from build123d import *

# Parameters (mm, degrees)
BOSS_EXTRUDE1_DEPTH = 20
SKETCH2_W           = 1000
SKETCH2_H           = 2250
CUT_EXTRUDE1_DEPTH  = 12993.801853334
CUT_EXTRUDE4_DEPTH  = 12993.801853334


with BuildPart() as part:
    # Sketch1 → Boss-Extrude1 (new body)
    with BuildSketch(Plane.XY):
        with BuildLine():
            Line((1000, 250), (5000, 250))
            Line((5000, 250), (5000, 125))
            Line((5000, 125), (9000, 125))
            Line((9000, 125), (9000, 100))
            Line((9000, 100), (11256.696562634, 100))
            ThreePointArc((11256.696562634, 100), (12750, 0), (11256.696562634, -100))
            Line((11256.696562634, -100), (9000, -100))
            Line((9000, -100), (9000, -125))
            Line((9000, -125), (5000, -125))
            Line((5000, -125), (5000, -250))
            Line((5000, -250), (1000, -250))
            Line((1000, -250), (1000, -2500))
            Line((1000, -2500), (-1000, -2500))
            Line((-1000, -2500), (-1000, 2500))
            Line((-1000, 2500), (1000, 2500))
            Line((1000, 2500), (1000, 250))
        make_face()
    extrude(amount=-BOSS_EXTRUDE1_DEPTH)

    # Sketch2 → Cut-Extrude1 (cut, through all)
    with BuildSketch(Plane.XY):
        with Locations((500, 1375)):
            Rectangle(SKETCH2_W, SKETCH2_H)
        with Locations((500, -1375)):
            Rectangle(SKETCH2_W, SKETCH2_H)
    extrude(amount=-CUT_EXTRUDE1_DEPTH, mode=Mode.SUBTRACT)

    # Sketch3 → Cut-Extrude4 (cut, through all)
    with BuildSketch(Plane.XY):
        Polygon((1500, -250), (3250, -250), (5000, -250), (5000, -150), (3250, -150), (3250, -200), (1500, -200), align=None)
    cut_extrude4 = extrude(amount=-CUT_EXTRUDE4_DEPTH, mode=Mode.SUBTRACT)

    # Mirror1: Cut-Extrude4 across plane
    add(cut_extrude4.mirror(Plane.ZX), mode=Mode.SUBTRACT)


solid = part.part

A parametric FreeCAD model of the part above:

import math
import FreeCAD as App
import Part
import Sketcher
Q = App.Units.Quantity

doc = App.newDocument("Part")
body = doc.addObject("PartDesign::Body", "Body")

# Sketch on XY plane
sketch1 = body.newObject("Sketcher::SketchObject", "Sketch")
sketch1.AttachmentSupport = (doc.getObject("XY_Plane"), [""])
sketch1.MapMode = "FlatFace"
sketch1.addGeometry([
    Part.LineSegment(App.Vector(5000, 250, 0), App.Vector(1000, 250, 0)),  # 0
    Part.LineSegment(App.Vector(1000, 250, 0), App.Vector(1000, 2500, 0)),  # 1
    Part.LineSegment(App.Vector(1000, 2500, 0), App.Vector(-1000, 2500, 0)),  # 2
    Part.LineSegment(App.Vector(-1000, 2500, 0), App.Vector(-1000, -2500, 0)),  # 3
    Part.LineSegment(App.Vector(-1000, -2500, 0), App.Vector(1000, -2500, 0)),  # 4
    Part.LineSegment(App.Vector(1000, -2500, 0), App.Vector(1000, -250, 0)),  # 5
    Part.LineSegment(App.Vector(1000, -250, 0), App.Vector(5000, -250, 0)),  # 6
    Part.LineSegment(App.Vector(5000, -250, 0), App.Vector(5000, -125, 0)),  # 7
    Part.LineSegment(App.Vector(5000, -125, 0), App.Vector(9000, -125, 0)),  # 8
    Part.LineSegment(App.Vector(9000, -125, 0), App.Vector(9000, -100, 0)),  # 9
    Part.LineSegment(App.Vector(9000, -100, 0), App.Vector(11256.696563, -100, 0)),  # 10
    Part.ArcOfCircle(Part.Circle(App.Vector(12000, 0, 0), App.Vector(0, 0, 1), 750), math.radians(-172.337744), math.radians(172.337744)),  # 11
    Part.LineSegment(App.Vector(11256.696563, 100, 0), App.Vector(9000, 100, 0)),  # 12
    Part.LineSegment(App.Vector(9000, 100, 0), App.Vector(9000, 125, 0)),  # 13
    Part.LineSegment(App.Vector(9000, 125, 0), App.Vector(5000, 125, 0)),  # 14
    Part.LineSegment(App.Vector(5000, 125, 0), App.Vector(5000, 250, 0)),  # 15
], False)
sketch1.addConstraint([
    Sketcher.Constraint("Coincident", 0, 2, 1, 1),
    Sketcher.Constraint("Coincident", 1, 2, 2, 1),
    Sketcher.Constraint("Coincident", 2, 2, 3, 1),
    Sketcher.Constraint("Coincident", 3, 2, 4, 1),
    Sketcher.Constraint("Coincident", 4, 2, 5, 1),
    Sketcher.Constraint("Coincident", 5, 2, 6, 1),
    Sketcher.Constraint("Coincident", 6, 2, 7, 1),
    Sketcher.Constraint("Coincident", 7, 2, 8, 1),
    Sketcher.Constraint("Coincident", 8, 2, 9, 1),
    Sketcher.Constraint("Coincident", 9, 2, 10, 1),
    Sketcher.Constraint("Coincident", 10, 2, 11, 1),
    Sketcher.Constraint("Coincident", 11, 2, 12, 1),
    Sketcher.Constraint("Coincident", 12, 2, 13, 1),
    Sketcher.Constraint("Coincident", 13, 2, 14, 1),
    Sketcher.Constraint("Coincident", 14, 2, 15, 1),
    Sketcher.Constraint("Coincident", 15, 2, 0, 1),
    Sketcher.Constraint("Horizontal", 0),
    Sketcher.Constraint("Vertical", 1),
    Sketcher.Constraint("Horizontal", 2),
    Sketcher.Constraint("Vertical", 3),
    Sketcher.Constraint("Horizontal", 4),
    Sketcher.Constraint("Vertical", 5),
    Sketcher.Constraint("Horizontal", 6),
    Sketcher.Constraint("Vertical", 7),
    Sketcher.Constraint("Horizontal", 8),
    Sketcher.Constraint("Vertical", 9),
    Sketcher.Constraint("Horizontal", 10),
    Sketcher.Constraint("Horizontal", 12),
    Sketcher.Constraint("Vertical", 13),
    Sketcher.Constraint("Horizontal", 14),
    Sketcher.Constraint("Vertical", 15),
    Sketcher.Constraint("Symmetric", 1, 2, 3, 2, -1, 1),
    Sketcher.Constraint("Symmetric", 0, 2, 5, 2, -1),
    Sketcher.Constraint("Symmetric", 9, 2, 12, 2, -1),
    Sketcher.Constraint("Symmetric", 7, 2, 14, 2, -1),
    Sketcher.Constraint("PointOnObject", 11, 3, -1),
    Sketcher.Constraint("Equal", 6, 8),
    Sketcher.Constraint("Radius", 11, Q("750 mm")),
    Sketcher.Constraint("DistanceX", 0, 2, 0, 1, Q("4000 mm")),
    Sketcher.Constraint("DistanceX", 2, 2, 2, 1, Q("2000 mm")),
    Sketcher.Constraint("DistanceY", 1, 1, 1, 2, Q("2250 mm")),
    Sketcher.Constraint("DistanceY", 3, 2, 3, 1, Q("5000 mm")),
    Sketcher.Constraint("DistanceY", 7, 1, 7, 2, Q("125 mm")),
    Sketcher.Constraint("DistanceY", 9, 1, 9, 2, Q("25 mm")),
    Sketcher.Constraint("DistanceX", -1, 1, 11, 3, Q("12000 mm")),
])
pad1 = body.newObject("PartDesign::Pad", "Pad")
pad1.Profile = sketch1
pad1.Length = 20
pad1.Reversed = True

# Sketch on XY plane
sketch2 = body.newObject("Sketcher::SketchObject", "Sketch001")
sketch2.AttachmentSupport = (doc.getObject("XY_Plane"), [""])
sketch2.MapMode = "FlatFace"
sketch2.addGeometry([
    Part.LineSegment(App.Vector(0, 2500, 0), App.Vector(0, 250, 0)),  # 0
    Part.LineSegment(App.Vector(0, 250, 0), App.Vector(1000, 250, 0)),  # 1
    Part.LineSegment(App.Vector(1000, 250, 0), App.Vector(1000, 2500, 0)),  # 2
    Part.LineSegment(App.Vector(1000, 2500, 0), App.Vector(0, 2500, 0)),  # 3
    Part.LineSegment(App.Vector(0, -250, 0), App.Vector(0, -2500, 0)),  # 4
    Part.LineSegment(App.Vector(0, -2500, 0), App.Vector(1000, -2500, 0)),  # 5
    Part.LineSegment(App.Vector(1000, -2500, 0), App.Vector(1000, -250, 0)),  # 6
    Part.LineSegment(App.Vector(1000, -250, 0), App.Vector(0, -250, 0)),  # 7
], False)
sketch2.addConstraint([
    Sketcher.Constraint("Coincident", 0, 2, 1, 1),
    Sketcher.Constraint("Coincident", 1, 2, 2, 1),
    Sketcher.Constraint("Coincident", 2, 2, 3, 1),
    Sketcher.Constraint("Coincident", 3, 2, 0, 1),
    Sketcher.Constraint("Coincident", 4, 2, 5, 1),
    Sketcher.Constraint("Coincident", 5, 2, 6, 1),
    Sketcher.Constraint("Coincident", 6, 2, 7, 1),
    Sketcher.Constraint("Coincident", 7, 2, 4, 1),
    Sketcher.Constraint("Vertical", 0),
    Sketcher.Constraint("Horizontal", 1),
    Sketcher.Constraint("Vertical", 2),
    Sketcher.Constraint("Horizontal", 3),
    Sketcher.Constraint("Vertical", 4),
    Sketcher.Constraint("Horizontal", 5),
    Sketcher.Constraint("Vertical", 6),
    Sketcher.Constraint("Horizontal", 7),
    Sketcher.Constraint("Symmetric", 3, 2, 4, 2, -1, 1),
    Sketcher.Constraint("Symmetric", 1, 2, 6, 2, -1),
    Sketcher.Constraint("PointOnObject", 0, 2, -2),
    Sketcher.Constraint("DistanceX", 1, 1, 1, 2, Q("1000 mm")),
    Sketcher.Constraint("DistanceY", 0, 2, 0, 1, Q("2250 mm")),
    Sketcher.Constraint("DistanceY", -1, 1, 0, 2, Q("250 mm")),
])
pocket1 = body.newObject("PartDesign::Pocket", "Pocket")
pocket1.Profile = sketch2
pocket1.Type = "ThroughAll"

# Sketch on XY plane
sketch3 = body.newObject("Sketcher::SketchObject", "Sketch002")
sketch3.AttachmentSupport = (doc.getObject("XY_Plane"), [""])
sketch3.MapMode = "FlatFace"
sketch3.addGeometry([
    Part.LineSegment(App.Vector(1500, -250, 0), App.Vector(5000, -250, 0)),  # 0
    Part.LineSegment(App.Vector(5000, -250, 0), App.Vector(5000, -150, 0)),  # 1
    Part.LineSegment(App.Vector(5000, -150, 0), App.Vector(3250, -150, 0)),  # 2
    Part.LineSegment(App.Vector(3250, -150, 0), App.Vector(3250, -200, 0)),  # 3
    Part.LineSegment(App.Vector(3250, -200, 0), App.Vector(1500, -200, 0)),  # 4
    Part.LineSegment(App.Vector(1500, -200, 0), App.Vector(1500, -250, 0)),  # 5
], False)
sketch3.addConstraint([
    Sketcher.Constraint("Coincident", 0, 2, 1, 1),
    Sketcher.Constraint("Coincident", 1, 2, 2, 1),
    Sketcher.Constraint("Coincident", 2, 2, 3, 1),
    Sketcher.Constraint("Coincident", 3, 2, 4, 1),
    Sketcher.Constraint("Coincident", 4, 2, 5, 1),
    Sketcher.Constraint("Coincident", 5, 2, 0, 1),
    Sketcher.Constraint("Horizontal", 0),
    Sketcher.Constraint("Vertical", 1),
    Sketcher.Constraint("Horizontal", 2),
    Sketcher.Constraint("Vertical", 3),
    Sketcher.Constraint("Horizontal", 4),
    Sketcher.Constraint("Vertical", 5),
    Sketcher.Constraint("Equal", 2, 4),
    Sketcher.Constraint("Equal", 3, 5),
    Sketcher.Constraint("DistanceX", 0, 1, 0, 2, Q("3500 mm")),
    Sketcher.Constraint("DistanceY", 1, 1, 1, 2, Q("100 mm")),
    Sketcher.Constraint("DistanceX", -1, 1, 0, 2, Q("5000 mm")),
    Sketcher.Constraint("DistanceY", 0, 2, -1, 1, Q("250 mm")),
])
pocket2 = body.newObject("PartDesign::Pocket", "Pocket001")
pocket2.Profile = sketch3
pocket2.Type = "ThroughAll"
doc.recompute()

mirrored = body.newObject("PartDesign::Mirrored", "Mirrored")
mirrored.Originals = [pocket2]
mirrored.MirrorPlane = (doc.getObject("XZ_Plane"), [""])
body.Tip = mirrored

doc.recompute()
